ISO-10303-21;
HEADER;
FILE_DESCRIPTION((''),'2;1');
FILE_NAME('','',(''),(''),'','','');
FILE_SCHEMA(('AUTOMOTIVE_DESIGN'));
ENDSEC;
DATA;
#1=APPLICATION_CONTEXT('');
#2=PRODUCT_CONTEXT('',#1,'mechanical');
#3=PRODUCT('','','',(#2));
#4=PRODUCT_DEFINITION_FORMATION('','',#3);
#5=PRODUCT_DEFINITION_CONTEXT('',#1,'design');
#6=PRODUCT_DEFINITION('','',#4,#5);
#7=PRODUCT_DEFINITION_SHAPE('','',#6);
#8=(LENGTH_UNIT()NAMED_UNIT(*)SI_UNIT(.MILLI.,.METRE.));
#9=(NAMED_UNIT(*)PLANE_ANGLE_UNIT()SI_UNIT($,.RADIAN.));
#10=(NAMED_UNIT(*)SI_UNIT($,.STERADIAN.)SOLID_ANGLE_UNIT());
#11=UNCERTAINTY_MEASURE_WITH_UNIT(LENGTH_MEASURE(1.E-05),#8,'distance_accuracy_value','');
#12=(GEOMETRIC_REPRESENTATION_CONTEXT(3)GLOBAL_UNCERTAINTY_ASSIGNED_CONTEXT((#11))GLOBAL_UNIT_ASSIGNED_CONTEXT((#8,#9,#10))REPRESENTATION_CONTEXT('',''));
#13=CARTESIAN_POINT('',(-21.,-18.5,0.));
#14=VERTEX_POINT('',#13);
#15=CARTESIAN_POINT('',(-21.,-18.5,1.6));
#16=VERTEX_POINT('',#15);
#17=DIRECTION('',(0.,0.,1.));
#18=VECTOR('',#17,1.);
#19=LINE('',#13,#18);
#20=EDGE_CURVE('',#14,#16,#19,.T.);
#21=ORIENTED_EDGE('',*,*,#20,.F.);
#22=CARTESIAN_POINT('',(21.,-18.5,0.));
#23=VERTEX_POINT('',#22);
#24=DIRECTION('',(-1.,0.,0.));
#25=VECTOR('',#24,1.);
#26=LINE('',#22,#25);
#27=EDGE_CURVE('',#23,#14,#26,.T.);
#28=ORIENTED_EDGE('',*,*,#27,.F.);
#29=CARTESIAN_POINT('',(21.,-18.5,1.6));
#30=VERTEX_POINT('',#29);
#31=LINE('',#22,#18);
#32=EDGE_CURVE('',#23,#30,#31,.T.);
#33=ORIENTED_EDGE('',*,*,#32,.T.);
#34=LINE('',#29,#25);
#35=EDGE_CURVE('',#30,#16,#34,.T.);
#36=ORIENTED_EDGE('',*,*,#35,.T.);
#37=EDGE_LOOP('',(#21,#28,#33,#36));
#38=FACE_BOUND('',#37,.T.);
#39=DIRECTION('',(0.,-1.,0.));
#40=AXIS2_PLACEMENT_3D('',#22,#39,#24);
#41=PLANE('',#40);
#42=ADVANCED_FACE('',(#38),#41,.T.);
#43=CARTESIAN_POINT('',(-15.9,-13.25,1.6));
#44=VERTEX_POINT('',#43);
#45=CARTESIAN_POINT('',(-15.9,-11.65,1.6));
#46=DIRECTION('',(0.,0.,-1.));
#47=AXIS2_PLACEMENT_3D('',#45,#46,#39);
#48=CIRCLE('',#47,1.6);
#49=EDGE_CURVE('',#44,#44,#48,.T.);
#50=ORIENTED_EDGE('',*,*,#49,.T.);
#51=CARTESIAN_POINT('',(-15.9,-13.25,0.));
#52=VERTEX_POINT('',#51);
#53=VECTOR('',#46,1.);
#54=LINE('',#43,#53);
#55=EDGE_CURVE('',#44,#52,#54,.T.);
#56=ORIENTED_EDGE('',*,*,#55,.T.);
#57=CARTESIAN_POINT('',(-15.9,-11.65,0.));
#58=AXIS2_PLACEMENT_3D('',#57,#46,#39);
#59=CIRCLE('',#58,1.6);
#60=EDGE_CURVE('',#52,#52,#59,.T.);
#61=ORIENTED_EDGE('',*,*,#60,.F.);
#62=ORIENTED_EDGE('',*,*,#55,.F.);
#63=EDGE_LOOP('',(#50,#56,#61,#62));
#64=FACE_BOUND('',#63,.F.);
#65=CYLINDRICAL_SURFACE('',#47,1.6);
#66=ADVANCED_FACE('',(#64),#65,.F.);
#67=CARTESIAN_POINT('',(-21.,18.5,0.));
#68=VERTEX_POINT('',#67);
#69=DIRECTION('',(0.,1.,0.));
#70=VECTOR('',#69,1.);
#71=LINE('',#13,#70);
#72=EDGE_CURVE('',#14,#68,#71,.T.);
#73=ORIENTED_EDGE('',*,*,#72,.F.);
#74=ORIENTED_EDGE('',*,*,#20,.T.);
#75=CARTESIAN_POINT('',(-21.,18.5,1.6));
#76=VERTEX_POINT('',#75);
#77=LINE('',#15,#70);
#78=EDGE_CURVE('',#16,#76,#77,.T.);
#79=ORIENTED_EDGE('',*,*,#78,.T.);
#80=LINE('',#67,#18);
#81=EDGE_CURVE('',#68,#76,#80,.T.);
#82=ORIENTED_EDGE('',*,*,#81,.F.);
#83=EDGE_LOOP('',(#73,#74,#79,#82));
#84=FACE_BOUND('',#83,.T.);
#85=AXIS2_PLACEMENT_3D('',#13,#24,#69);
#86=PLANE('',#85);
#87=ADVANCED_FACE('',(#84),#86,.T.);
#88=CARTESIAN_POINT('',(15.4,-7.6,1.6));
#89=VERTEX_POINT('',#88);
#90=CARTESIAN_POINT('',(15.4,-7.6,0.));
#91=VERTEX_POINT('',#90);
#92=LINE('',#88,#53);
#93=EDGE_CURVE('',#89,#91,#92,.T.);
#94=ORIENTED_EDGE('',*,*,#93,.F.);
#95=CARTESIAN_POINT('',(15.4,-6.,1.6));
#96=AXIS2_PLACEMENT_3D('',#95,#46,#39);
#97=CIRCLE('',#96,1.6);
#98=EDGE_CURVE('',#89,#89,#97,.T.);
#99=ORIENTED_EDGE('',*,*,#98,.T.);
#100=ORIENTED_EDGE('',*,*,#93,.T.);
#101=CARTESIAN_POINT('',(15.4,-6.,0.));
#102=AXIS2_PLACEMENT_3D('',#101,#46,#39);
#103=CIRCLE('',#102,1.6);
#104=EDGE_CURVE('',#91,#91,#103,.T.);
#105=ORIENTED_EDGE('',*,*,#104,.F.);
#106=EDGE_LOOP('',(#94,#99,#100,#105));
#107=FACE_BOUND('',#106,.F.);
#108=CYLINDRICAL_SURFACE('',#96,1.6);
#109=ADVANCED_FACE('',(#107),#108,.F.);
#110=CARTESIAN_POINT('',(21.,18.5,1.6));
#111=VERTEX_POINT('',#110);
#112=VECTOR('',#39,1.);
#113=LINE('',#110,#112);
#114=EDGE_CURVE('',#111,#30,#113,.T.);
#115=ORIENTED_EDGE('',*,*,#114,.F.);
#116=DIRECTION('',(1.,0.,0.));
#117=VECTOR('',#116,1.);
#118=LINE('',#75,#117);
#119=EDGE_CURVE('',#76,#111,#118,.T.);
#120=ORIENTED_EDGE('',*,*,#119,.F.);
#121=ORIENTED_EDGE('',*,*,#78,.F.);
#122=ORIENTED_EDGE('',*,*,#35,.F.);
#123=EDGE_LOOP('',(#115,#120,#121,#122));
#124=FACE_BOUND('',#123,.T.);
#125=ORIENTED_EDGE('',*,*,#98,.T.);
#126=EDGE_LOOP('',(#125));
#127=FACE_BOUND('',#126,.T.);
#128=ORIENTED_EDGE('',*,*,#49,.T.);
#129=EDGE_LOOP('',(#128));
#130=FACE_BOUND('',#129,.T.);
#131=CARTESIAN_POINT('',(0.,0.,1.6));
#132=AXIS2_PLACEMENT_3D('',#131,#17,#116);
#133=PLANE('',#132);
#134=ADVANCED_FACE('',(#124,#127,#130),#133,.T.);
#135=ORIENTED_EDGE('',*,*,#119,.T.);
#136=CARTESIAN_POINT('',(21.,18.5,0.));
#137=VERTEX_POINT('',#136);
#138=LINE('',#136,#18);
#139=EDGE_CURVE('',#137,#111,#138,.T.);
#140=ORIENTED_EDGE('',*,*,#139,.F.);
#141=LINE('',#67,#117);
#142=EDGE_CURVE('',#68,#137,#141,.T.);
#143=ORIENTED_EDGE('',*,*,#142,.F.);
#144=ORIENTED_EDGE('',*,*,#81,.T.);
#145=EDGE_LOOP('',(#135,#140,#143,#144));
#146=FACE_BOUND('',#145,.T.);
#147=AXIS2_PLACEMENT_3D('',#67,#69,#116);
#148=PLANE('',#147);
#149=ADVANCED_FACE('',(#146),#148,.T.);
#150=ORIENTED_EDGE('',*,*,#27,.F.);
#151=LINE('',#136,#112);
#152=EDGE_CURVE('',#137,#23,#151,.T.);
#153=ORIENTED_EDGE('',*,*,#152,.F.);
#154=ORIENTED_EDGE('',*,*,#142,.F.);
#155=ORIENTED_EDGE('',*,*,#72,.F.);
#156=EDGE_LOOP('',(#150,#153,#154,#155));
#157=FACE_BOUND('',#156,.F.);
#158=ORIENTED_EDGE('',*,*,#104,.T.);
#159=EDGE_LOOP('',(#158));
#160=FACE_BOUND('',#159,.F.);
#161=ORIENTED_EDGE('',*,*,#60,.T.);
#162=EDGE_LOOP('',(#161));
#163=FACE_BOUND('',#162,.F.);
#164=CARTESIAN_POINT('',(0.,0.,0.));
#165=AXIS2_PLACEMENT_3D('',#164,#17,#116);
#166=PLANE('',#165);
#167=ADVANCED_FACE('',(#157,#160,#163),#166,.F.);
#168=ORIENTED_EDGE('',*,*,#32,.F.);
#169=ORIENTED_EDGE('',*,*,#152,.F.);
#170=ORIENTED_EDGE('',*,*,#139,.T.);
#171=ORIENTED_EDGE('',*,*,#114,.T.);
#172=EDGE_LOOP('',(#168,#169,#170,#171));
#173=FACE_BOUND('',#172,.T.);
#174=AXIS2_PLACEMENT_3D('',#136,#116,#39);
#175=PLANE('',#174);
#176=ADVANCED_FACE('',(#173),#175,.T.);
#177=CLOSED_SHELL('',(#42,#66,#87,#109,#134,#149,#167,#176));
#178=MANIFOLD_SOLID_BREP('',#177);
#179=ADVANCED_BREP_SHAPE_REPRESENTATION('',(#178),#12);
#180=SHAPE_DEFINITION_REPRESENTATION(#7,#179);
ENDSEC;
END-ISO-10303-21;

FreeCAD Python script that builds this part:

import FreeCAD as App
import Part
import Sketcher
Q = App.Units.Quantity


def add_polygon(sketch, points):
    """Adds a closed chain of lines whose ends are joined by coincident constraints."""
    first, n = sketch.GeometryCount, len(points)
    for a, b in zip(points, points[1:] + points[:1]):
        sketch.addGeometry(Part.LineSegment(App.Vector(*a, 0), App.Vector(*b, 0)), False)
    for i in range(n):
        sketch.addConstraint(Sketcher.Constraint("Coincident", first + i, 2, first + (i + 1) % n, 1))

doc = App.newDocument("Part")
body = doc.addObject("PartDesign::Body", "Body")

# Sketch on XY plane
sketch1 = doc.addObject("Sketcher::SketchObject", "Sketch")
body.addObject(sketch1)
sketch1.AttachmentSupport = (doc.XY_Plane, [""])
sketch1.MapMode = "FlatFace"
add_polygon(sketch1, [(21, 18), (-21, 18), (-21, -18), (21, -18)])  # lines 0-3
sketch1.addConstraint(Sketcher.Constraint("Horizontal", 0))
sketch1.addConstraint(Sketcher.Constraint("Vertical", 1))
sketch1.addConstraint(Sketcher.Constraint("Horizontal", 2))
sketch1.addConstraint(Sketcher.Constraint("Vertical", 3))
sketch1.addConstraint(Sketcher.Constraint("Symmetric", 0, 2, 2, 2, -1, 1))
sketch1.addConstraint(Sketcher.Constraint("DistanceX", 0, 2, 0, 1, Q("42 mm")))
sketch1.addConstraint(Sketcher.Constraint("DistanceY", 1, 2, 1, 1, Q("37 mm")))
pad1 = doc.addObject("PartDesign::Pad", "Pad")
body.addObject(pad1)
pad1.Profile = sketch1
pad1.Length = 1.6

# Sketch on XY plane
sketch2 = doc.addObject("Sketcher::SketchObject", "Sketch001")
body.addObject(sketch2)
sketch2.AttachmentSupport = (doc.XY_Plane, [""])
sketch2.MapMode = "FlatFace"
sketch2.AttachmentOffset = App.Placement(App.Vector(0, 0, 1.6), App.Rotation())
sketch2.addGeometry(Part.Circle(App.Vector(-15.9, -11.7, 0), App.Vector(0, 0, 1), 1.6), False)
sketch2.addGeometry(Part.Circle(App.Vector(15.4, -6, 0), App.Vector(0, 0, 1), 1.6), False)
sketch2.addConstraint(Sketcher.Constraint("Equal", 0, 1))
sketch2.addConstraint(Sketcher.Constraint("Diameter", 0, Q("3.2 mm")))
sketch2.addConstraint(Sketcher.Constraint("DistanceY", 1, 3, -1, 1, Q("6 mm")))
sketch2.addConstraint(Sketcher.Constraint("DistanceX", 0, 3, -1, 1, Q("15.9 mm")))
sketch2.addConstraint(Sketcher.Constraint("DistanceX", -1, 1, 1, 3, Q("15.4 mm")))
sketch2.addConstraint(Sketcher.Constraint("DistanceY", 0, 3, -1, 1, Q("11.65 mm")))
doc.recompute()
hole = doc.addObject("PartDesign::Hole", "Hole")
body.addObject(hole)
hole.Profile = sketch2
hole.ThreadType = "None"
hole.Diameter = 3.2
hole.DepthType = "ThroughAll"

doc.recompute()
